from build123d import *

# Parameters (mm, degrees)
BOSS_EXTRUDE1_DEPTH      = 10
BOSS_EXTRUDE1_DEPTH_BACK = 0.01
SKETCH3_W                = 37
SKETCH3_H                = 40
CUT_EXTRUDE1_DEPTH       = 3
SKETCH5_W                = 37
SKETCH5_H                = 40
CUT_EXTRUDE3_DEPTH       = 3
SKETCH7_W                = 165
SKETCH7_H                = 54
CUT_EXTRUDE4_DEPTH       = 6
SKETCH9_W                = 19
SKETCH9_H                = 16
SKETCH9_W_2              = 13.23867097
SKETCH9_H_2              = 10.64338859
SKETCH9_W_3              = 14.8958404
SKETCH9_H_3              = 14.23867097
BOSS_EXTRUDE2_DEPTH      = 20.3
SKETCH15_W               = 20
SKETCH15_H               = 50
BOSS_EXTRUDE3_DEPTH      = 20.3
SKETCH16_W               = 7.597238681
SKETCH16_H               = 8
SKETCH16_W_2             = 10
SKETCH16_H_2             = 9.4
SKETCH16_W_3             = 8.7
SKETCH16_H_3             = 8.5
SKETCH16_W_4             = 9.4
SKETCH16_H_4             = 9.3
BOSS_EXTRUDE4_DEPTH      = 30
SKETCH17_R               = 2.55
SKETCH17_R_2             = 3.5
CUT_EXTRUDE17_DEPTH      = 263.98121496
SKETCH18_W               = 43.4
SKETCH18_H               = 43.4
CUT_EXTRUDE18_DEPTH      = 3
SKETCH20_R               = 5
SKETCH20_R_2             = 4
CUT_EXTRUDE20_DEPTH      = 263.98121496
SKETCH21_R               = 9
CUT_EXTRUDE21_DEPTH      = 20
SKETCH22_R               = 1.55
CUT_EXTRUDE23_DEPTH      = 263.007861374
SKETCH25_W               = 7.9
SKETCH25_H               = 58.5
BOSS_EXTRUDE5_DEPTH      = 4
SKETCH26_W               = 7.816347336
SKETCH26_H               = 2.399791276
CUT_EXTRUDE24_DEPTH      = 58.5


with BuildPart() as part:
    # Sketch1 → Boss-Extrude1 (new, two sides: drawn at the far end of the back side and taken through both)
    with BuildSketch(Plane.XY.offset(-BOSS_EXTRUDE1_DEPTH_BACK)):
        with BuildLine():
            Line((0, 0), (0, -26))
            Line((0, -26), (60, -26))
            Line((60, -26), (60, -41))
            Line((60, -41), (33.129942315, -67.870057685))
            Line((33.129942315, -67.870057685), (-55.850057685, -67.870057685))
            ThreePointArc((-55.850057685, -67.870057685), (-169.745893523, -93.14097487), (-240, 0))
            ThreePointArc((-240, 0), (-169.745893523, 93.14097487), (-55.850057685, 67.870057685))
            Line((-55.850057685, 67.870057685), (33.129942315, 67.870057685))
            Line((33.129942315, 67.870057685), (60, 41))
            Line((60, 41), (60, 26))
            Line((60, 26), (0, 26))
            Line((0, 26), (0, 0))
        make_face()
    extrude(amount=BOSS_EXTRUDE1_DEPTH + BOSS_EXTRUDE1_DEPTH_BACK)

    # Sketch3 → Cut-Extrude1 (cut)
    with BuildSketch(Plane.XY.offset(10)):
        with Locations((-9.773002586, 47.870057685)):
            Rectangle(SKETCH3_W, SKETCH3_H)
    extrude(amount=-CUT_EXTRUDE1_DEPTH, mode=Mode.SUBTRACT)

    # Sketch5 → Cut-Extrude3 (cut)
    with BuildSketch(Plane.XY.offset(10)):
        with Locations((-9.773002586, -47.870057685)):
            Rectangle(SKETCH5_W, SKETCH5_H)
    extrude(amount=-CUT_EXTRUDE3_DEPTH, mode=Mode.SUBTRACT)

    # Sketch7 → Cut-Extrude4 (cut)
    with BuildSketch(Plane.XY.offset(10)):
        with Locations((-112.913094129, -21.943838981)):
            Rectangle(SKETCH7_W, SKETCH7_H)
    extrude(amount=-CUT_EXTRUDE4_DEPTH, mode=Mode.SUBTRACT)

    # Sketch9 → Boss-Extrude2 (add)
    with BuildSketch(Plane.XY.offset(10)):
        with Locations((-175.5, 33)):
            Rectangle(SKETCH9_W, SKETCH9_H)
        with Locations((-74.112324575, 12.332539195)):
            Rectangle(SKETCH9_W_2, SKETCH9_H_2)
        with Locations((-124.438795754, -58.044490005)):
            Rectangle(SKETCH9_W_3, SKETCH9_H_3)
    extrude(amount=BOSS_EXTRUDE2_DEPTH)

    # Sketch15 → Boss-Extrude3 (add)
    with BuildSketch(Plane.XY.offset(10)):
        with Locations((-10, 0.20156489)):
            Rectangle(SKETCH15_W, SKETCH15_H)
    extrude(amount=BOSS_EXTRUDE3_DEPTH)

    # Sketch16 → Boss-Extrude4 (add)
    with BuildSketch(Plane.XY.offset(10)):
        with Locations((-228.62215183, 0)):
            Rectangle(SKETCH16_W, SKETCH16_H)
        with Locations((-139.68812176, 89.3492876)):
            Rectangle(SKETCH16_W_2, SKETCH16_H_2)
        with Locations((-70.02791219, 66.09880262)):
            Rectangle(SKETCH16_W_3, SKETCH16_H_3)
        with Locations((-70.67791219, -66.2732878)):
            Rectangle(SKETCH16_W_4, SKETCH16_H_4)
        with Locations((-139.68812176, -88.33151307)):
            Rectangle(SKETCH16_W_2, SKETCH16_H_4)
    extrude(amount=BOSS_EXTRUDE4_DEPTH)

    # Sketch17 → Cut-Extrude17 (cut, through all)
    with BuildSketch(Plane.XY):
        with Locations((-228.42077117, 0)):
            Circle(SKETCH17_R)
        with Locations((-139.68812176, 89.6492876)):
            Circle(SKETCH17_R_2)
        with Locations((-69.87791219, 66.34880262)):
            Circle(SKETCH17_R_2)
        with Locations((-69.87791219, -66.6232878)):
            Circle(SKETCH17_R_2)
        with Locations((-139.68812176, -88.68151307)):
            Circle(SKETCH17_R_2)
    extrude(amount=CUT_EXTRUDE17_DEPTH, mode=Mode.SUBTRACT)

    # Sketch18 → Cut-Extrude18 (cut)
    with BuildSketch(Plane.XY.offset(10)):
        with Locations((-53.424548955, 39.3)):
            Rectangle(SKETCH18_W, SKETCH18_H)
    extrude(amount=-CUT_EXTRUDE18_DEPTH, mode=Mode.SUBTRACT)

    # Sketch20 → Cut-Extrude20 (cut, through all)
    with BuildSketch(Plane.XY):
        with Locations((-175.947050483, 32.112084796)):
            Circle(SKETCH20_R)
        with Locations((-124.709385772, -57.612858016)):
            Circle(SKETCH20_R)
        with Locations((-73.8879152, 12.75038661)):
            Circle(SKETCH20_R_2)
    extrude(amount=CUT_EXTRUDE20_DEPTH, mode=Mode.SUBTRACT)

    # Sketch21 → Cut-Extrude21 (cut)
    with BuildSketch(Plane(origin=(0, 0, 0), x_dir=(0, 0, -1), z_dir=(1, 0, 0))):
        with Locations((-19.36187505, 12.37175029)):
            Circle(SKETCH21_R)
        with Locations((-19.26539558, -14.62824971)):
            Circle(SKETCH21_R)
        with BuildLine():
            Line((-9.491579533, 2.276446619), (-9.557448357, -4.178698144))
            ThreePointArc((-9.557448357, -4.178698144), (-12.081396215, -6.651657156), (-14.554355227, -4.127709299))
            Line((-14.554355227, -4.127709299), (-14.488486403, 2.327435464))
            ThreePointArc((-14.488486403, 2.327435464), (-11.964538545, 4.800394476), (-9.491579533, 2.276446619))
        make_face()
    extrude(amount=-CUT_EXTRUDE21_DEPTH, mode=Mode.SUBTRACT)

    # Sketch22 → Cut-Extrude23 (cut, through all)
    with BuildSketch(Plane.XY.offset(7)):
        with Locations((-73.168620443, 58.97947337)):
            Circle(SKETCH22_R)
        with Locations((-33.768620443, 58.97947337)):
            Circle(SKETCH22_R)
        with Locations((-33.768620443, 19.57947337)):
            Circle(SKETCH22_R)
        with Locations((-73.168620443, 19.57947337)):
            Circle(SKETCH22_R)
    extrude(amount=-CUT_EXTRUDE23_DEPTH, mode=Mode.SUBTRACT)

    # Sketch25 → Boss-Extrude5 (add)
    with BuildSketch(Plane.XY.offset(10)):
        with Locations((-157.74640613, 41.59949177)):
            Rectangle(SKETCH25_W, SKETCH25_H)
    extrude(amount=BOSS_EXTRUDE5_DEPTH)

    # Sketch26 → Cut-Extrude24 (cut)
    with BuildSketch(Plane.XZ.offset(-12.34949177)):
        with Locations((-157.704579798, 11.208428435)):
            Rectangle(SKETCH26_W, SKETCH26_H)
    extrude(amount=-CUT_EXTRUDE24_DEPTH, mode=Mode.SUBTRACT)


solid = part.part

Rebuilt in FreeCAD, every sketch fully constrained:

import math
import FreeCAD as App
import Part
import Sketcher
from FreeCAD import Vector

doc = App.newDocument("Part")
body = doc.addObject("PartDesign::Body", "Body")

# Sketch on XY plane
sketch1 = body.newObject("Sketcher::SketchObject", "Sketch")
sketch1.AttachmentSupport = (doc.getObject("XY_Plane"), [""])
sketch1.MapMode = "FlatFace"
sketch1.addGeometry(Part.LineSegment(Vector(60, -26, 0), Vector(0, -26, 0)), False)
sketch1.addGeometry(Part.LineSegment(Vector(0, -26, 0), Vector(0, 26, 0)), False)
sketch1.addGeometry(Part.LineSegment(Vector(0, 26, 0), Vector(60, 26, 0)), False)
sketch1.addGeometry(Part.LineSegment(Vector(60, 26, 0), Vector(60, 41, 0)), False)
sketch1.addGeometry(Part.LineSegment(Vector(60, 41, 0), Vector(33, 68, 0)), False)
sketch1.addGeometry(Part.LineSegment(Vector(33, 68, 0), Vector(-56, 68, 0)), False)
sketch1.addGeometry(Part.ArcOfCircle(Part.Circle(Vector(-132, -8, 0), Vector(0, 0, 1), 108), math.radians(45), math.radians(176)), False)
sketch1.addGeometry(Part.ArcOfCircle(Part.Circle(Vector(-132, 8, 0), Vector(0, 0, 1), 108), math.radians(-176), math.radians(-45)), False)
sketch1.addGeometry(Part.LineSegment(Vector(-56, -68, 0), Vector(33, -68, 0)), False)
sketch1.addGeometry(Part.LineSegment(Vector(33, -68, 0), Vector(60, -41, 0)), False)
sketch1.addGeometry(Part.LineSegment(Vector(60, -41, 0), Vector(60, -26, 0)), False)
sketch1.addConstraint(Sketcher.Constraint("Coincident", 0, 2, 1, 1))
sketch1.addConstraint(Sketcher.Constraint("Coincident", 1, 2, 2, 1))
sketch1.addConstraint(Sketcher.Constraint("Coincident", 2, 2, 3, 1))
sketch1.addConstraint(Sketcher.Constraint("Coincident", 3, 2, 4, 1))
sketch1.addConstraint(Sketcher.Constraint("Coincident", 4, 2, 5, 1))
sketch1.addConstraint(Sketcher.Constraint("Coincident", 5, 2, 6, 1))
sketch1.addConstraint(Sketcher.Constraint("Coincident", 6, 2, 7, 1))
sketch1.addConstraint(Sketcher.Constraint("Coincident", 7, 2, 8, 1))
sketch1.addConstraint(Sketcher.Constraint("Coincident", 8, 2, 9, 1))
sketch1.addConstraint(Sketcher.Constraint("Coincident", 9, 2, 10, 1))
sketch1.addConstraint(Sketcher.Constraint("Coincident", 10, 2, 0, 1))
sketch1.addConstraint(Sketcher.Constraint("Horizontal", 0))
sketch1.addConstraint(Sketcher.Constraint("Vertical", 1))
sketch1.addConstraint(Sketcher.Constraint("Horizontal", 2))
sketch1.addConstraint(Sketcher.Constraint("Vertical", 3))
sketch1.addConstraint(Sketcher.Constraint("Horizontal", 5))
sketch1.addConstraint(Sketcher.Constraint("Horizontal", 8))
sketch1.addConstraint(Sketcher.Constraint("Vertical", 10))
sketch1.addConstraint(Sketcher.Constraint("Equal", 6, 7))
sketch1.addConstraint(Sketcher.Constraint("Symmetric", 0, 2, 1, 2, -1, 1))
sketch1.addConstraint(Sketcher.Constraint("Symmetric", 6, 3, 7, 3, -1))
sketch1.addConstraint(Sketcher.Constraint("Symmetric", 4, 2, 8, 2, -1))
sketch1.addConstraint(Sketcher.Constraint("Symmetric", 3, 2, 9, 2, -1))
sketch1.addConstraint(Sketcher.Constraint("Perpendicular", 4, 9))
sketch1.addConstraint(Sketcher.Constraint("DistanceX", 0, 2, 0, 1, 60.0))
sketch1.addConstraint(Sketcher.Constraint("DistanceY", 1, 1, 1, 2, 52.0))
sketch1.addConstraint(Sketcher.Constraint("DistanceY", 3, 1, 3, 2, 15.0))
sketch1.addConstraint(Sketcher.Constraint("Distance", 4, 38.0))
sketch1.addConstraint(Sketcher.Constraint("DistanceX", 6, 2, -1, 1, 240.0))
sketch1.addConstraint(Sketcher.Constraint("DistanceX", 5, 2, 5, 1, 88.98))
sketch1.addConstraint(Sketcher.Constraint("Radius", 6, 107.853238))
pad1 = body.newObject("PartDesign::Pad", "Pad")
pad1.Profile = sketch1
pad1.Type = "TwoLengths"
pad1.Length = 10
pad1.Length2 = 0.01

# Sketch on XY plane
sketch2 = body.newObject("Sketcher::SketchObject", "Sketch001")
sketch2.AttachmentSupport = (doc.getObject("XY_Plane"), [""])
sketch2.MapMode = "FlatFace"
sketch2.AttachmentOffset = App.Placement(Vector(0, 0, 10), App.Rotation())
sketch2.addGeometry(Part.LineSegment(Vector(-28, 68, 0), Vector(-28, 28, 0)), False)
sketch2.addGeometry(Part.LineSegment(Vector(-28, 28, 0), Vector(9, 28, 0)), False)
sketch2.addGeometry(Part.LineSegment(Vector(9, 28, 0), Vector(9, 68, 0)), False)
sketch2.addGeometry(Part.LineSegment(Vector(9, 68, 0), Vector(-28, 68, 0)), False)
sketch2.addConstraint(Sketcher.Constraint("Coincident", 0, 2, 1, 1))
sketch2.addConstraint(Sketcher.Constraint("Coincident", 1, 2, 2, 1))
sketch2.addConstraint(Sketcher.Constraint("Coincident", 2, 2, 3, 1))
sketch2.addConstraint(Sketcher.Constraint("Coincident", 3, 2, 0, 1))
sketch2.addConstraint(Sketcher.Constraint("Vertical", 0))
sketch2.addConstraint(Sketcher.Constraint("Horizontal", 1))
sketch2.addConstraint(Sketcher.Constraint("Vertical", 2))
sketch2.addConstraint(Sketcher.Constraint("Horizontal", 3))
sketch2.addConstraint(Sketcher.Constraint("DistanceX", 1, 1, 1, 2, 37.0))
sketch2.addConstraint(Sketcher.Constraint("DistanceY", 0, 2, 0, 1, 40.0))
sketch2.addConstraint(Sketcher.Constraint("DistanceX", 0, 2, -1, 1, 28.273003))
sketch2.addConstraint(Sketcher.Constraint("DistanceY", -1, 1, 0, 2, 27.870058))
pocket1 = body.newObject("PartDesign::Pocket", "Pocket")
pocket1.Profile = sketch2
pocket1.Length = 3

# Sketch on XY plane
sketch3 = body.newObject("Sketcher::SketchObject", "Sketch002")
sketch3.AttachmentSupport = (doc.getObject("XY_Plane"), [""])
sketch3.MapMode = "FlatFace"
sketch3.AttachmentOffset = App.Placement(Vector(0, 0, 10), App.Rotation())
sketch3.addGeometry(Part.LineSegment(Vector(-28, -28, 0), Vector(-28, -68, 0)), False)
sketch3.addGeometry(Part.LineSegment(Vector(-28, -68, 0), Vector(9, -68, 0)), False)
sketch3.addGeometry(Part.LineSegment(Vector(9, -68, 0), Vector(9, -28, 0)), False)
sketch3.addGeometry(Part.LineSegment(Vector(9, -28, 0), Vector(-28, -28, 0)), False)
sketch3.addConstraint(Sketcher.Constraint("Coincident", 0, 2, 1, 1))
sketch3.addConstraint(Sketcher.Constraint("Coincident", 1, 2, 2, 1))
sketch3.addConstraint(Sketcher.Constraint("Coincident", 2, 2, 3, 1))
sketch3.addConstraint(Sketcher.Constraint("Coincident", 3, 2, 0, 1))
sketch3.addConstraint(Sketcher.Constraint("Vertical", 0))
sketch3.addConstraint(Sketcher.Constraint("Horizontal", 1))
sketch3.addConstraint(Sketcher.Constraint("Vertical", 2))
sketch3.addConstraint(Sketcher.Constraint("Horizontal", 3))
sketch3.addConstraint(Sketcher.Constraint("DistanceX", 1, 1, 1, 2, 37.0))
sketch3.addConstraint(Sketcher.Constraint("DistanceY", 0, 2, 0, 1, 40.0))
sketch3.addConstraint(Sketcher.Constraint("DistanceX", 0, 2, -1, 1, 28.273003))
sketch3.addConstraint(Sketcher.Constraint("DistanceY", 0, 2, -1, 1, 67.870058))
pocket2 = body.newObject("PartDesign::Pocket", "Pocket001")
pocket2.Profile = sketch3
pocket2.Length = 3

# Sketch on XY plane
sketch4 = body.newObject("Sketcher::SketchObject", "Sketch003")
sketch4.AttachmentSupport = (doc.getObject("XY_Plane"), [""])
sketch4.MapMode = "FlatFace"
sketch4.AttachmentOffset = App.Placement(Vector(0, 0, 10), App.Rotation())
sketch4.addGeometry(Part.LineSegment(Vector(-195, 5, 0), Vector(-195, -49, 0)), False)
sketch4.addGeometry(Part.LineSegment(Vector(-195, -49, 0), Vector(-30, -49, 0)), False)
sketch4.addGeometry(Part.LineSegment(Vector(-30, -49, 0), Vector(-30, 5, 0)), False)
sketch4.addGeometry(Part.LineSegment(Vector(-30, 5, 0), Vector(-195, 5, 0)), False)
sketch4.addConstraint(Sketcher.Constraint("Coincident", 0, 2, 1, 1))
sketch4.addConstraint(Sketcher.Constraint("Coincident", 1, 2, 2, 1))
sketch4.addConstraint(Sketcher.Constraint("Coincident", 2, 2, 3, 1))
sketch4.addConstraint(Sketcher.Constraint("Coincident", 3, 2, 0, 1))
sketch4.addConstraint(Sketcher.Constraint("Vertical", 0))
sketch4.addConstraint(Sketcher.Constraint("Horizontal", 1))
sketch4.addConstraint(Sketcher.Constraint("Vertical", 2))
sketch4.addConstraint(Sketcher.Constraint("Horizontal", 3))
sketch4.addConstraint(Sketcher.Constraint("DistanceX", 1, 1, 1, 2, 165.0))
sketch4.addConstraint(Sketcher.Constraint("DistanceY", 0, 2, 0, 1, 54.0))
sketch4.addConstraint(Sketcher.Constraint("DistanceY", 0, 2, -1, 1, 48.943839))
sketch4.addConstraint(Sketcher.Constraint("DistanceX", 0, 2, -1, 1, 195.413094))
pocket3 = body.newObject("PartDesign::Pocket", "Pocket002")
pocket3.Profile = sketch4
pocket3.Length = 6

# Sketch on XY plane
sketch5 = body.newObject("Sketcher::SketchObject", "Sketch004")
sketch5.AttachmentSupport = (doc.getObject("XY_Plane"), [""])
sketch5.MapMode = "FlatFace"
sketch5.AttachmentOffset = App.Placement(Vector(0, 0, 10), App.Rotation())
sketch5.addGeometry(Part.LineSegment(Vector(-185, 41, 0), Vector(-185, 25, 0)), False)
sketch5.addGeometry(Part.LineSegment(Vector(-185, 25, 0), Vector(-166, 25, 0)), False)
sketch5.addGeometry(Part.LineSegment(Vector(-166, 25, 0), Vector(-166, 41, 0)), False)
sketch5.addGeometry(Part.LineSegment(Vector(-166, 41, 0), Vector(-185, 41, 0)), False)
sketch5.addGeometry(Part.LineSegment(Vector(-81, 18, 0), Vector(-81, 7, 0)), False)
sketch5.addGeometry(Part.LineSegment(Vector(-81, 7, 0), Vector(-67, 7, 0)), False)
sketch5.addGeometry(Part.LineSegment(Vector(-67, 7, 0), Vector(-67, 18, 0)), False)
sketch5.addGeometry(Part.LineSegment(Vector(-67, 18, 0), Vector(-81, 18, 0)), False)
sketch5.addGeometry(Part.LineSegment(Vector(-132, -51, 0), Vector(-132, -65, 0)), False)
sketch5.addGeometry(Part.LineSegment(Vector(-132, -65, 0), Vector(-117, -65, 0)), False)
sketch5.addGeometry(Part.LineSegment(Vector(-117, -65, 0), Vector(-117, -51, 0)), False)
sketch5.addGeometry(Part.LineSegment(Vector(-117, -51, 0), Vector(-132, -51, 0)), False)
sketch5.addConstraint(Sketcher.Constraint("Coincident", 0, 2, 1, 1))
sketch5.addConstraint(Sketcher.Constraint("Coincident", 1, 2, 2, 1))
sketch5.addConstraint(Sketcher.Constraint("Coincident", 2, 2, 3, 1))
sketch5.addConstraint(Sketcher.Constraint("Coincident", 3, 2, 0, 1))
sketch5.addConstraint(Sketcher.Constraint("Coincident", 4, 2, 5, 1))
sketch5.addConstraint(Sketcher.Constraint("Coincident", 5, 2, 6, 1))
sketch5.addConstraint(Sketcher.Constraint("Coincident", 6, 2, 7, 1))
sketch5.addConstraint(Sketcher.Constraint("Coincident", 7, 2, 4, 1))
sketch5.addConstraint(Sketcher.Constraint("Coincident", 8, 2, 9, 1))
sketch5.addConstraint(Sketcher.Constraint("Coincident", 9, 2, 10, 1))
sketch5.addConstraint(Sketcher.Constraint("Coincident", 10, 2, 11, 1))
sketch5.addConstraint(Sketcher.Constraint("Coincident", 11, 2, 8, 1))
sketch5.addConstraint(Sketcher.Constraint("Vertical", 0))
sketch5.addConstraint(Sketcher.Constraint("Horizontal", 1))
sketch5.addConstraint(Sketcher.Constraint("Vertical", 2))
sketch5.addConstraint(Sketcher.Constraint("Horizontal", 3))
sketch5.addConstraint(Sketcher.Constraint("Vertical", 4))
sketch5.addConstraint(Sketcher.Constraint("Horizontal", 5))
sketch5.addConstraint(Sketcher.Constraint("Vertical", 6))
sketch5.addConstraint(Sketcher.Constraint("Horizontal", 7))
sketch5.addConstraint(Sketcher.Constraint("Vertical", 8))
sketch5.addConstraint(Sketcher.Constraint("Horizontal", 9))
sketch5.addConstraint(Sketcher.Constraint("Vertical", 10))
sketch5.addConstraint(Sketcher.Constraint("Horizontal", 11))
sketch5.addConstraint(Sketcher.Constraint("DistanceX", 1, 1, 1, 2, 19.0))
sketch5.addConstraint(Sketcher.Constraint("DistanceY", 0, 2, 0, 1, 16.0))
sketch5.addConstraint(Sketcher.Constraint("DistanceX", 0, 2, -1, 1, 185.0))
sketch5.addConstraint(Sketcher.Constraint("DistanceY", -1, 1, 0, 2, 25.0))
sketch5.addConstraint(Sketcher.Constraint("DistanceY", 10, 2, 4, 2, 57.935999))
sketch5.addConstraint(Sketcher.Constraint("DistanceX", 5, 1, 5, 2, 13.238671))
sketch5.addConstraint(Sketcher.Constraint("DistanceX", 9, 1, 9, 2, 14.89584))
sketch5.addConstraint(Sketcher.Constraint("DistanceY", 4, 2, 4, 1, 10.643389))
sketch5.addConstraint(Sketcher.Constraint("DistanceY", 8, 2, 8, 1, 14.238671))
sketch5.addConstraint(Sketcher.Constraint("DistanceX", 4, 2, -1, 1, 80.73166))
sketch5.addConstraint(Sketcher.Constraint("DistanceY", -1, 1, 4, 2, 7.010845))
sketch5.addConstraint(Sketcher.Constraint("DistanceX", 8, 2, -1, 1, 131.886716))
pad2 = body.newObject("PartDesign::Pad", "Pad001")
pad2.Profile = sketch5
pad2.Length = 20.3

# Sketch on XY plane
sketch6 = body.newObject("Sketcher::SketchObject", "Sketch005")
sketch6.AttachmentSupport = (doc.getObject("XY_Plane"), [""])
sketch6.MapMode = "FlatFace"
sketch6.AttachmentOffset = App.Placement(Vector(0, 0, 10), App.Rotation())
sketch6.addGeometry(Part.LineSegment(Vector(-20, 25, 0), Vector(-20, -25, 0)), False)
sketch6.addGeometry(Part.LineSegment(Vector(-20, -25, 0), Vector(0, -25, 0)), False)
sketch6.addGeometry(Part.LineSegment(Vector(0, -25, 0), Vector(0, 25, 0)), False)
sketch6.addGeometry(Part.LineSegment(Vector(0, 25, 0), Vector(-20, 25, 0)), False)
sketch6.addConstraint(Sketcher.Constraint("Coincident", 0, 2, 1, 1))
sketch6.addConstraint(Sketcher.Constraint("Coincident", 1, 2, 2, 1))
sketch6.addConstraint(Sketcher.Constraint("Coincident", 2, 2, 3, 1))
sketch6.addConstraint(Sketcher.Constraint("Coincident", 3, 2, 0, 1))
sketch6.addConstraint(Sketcher.Constraint("Vertical", 0))
sketch6.addConstraint(Sketcher.Constraint("Horizontal", 1))
sketch6.addConstraint(Sketcher.Constraint("Vertical", 2))
sketch6.addConstraint(Sketcher.Constraint("Horizontal", 3))
sketch6.addConstraint(Sketcher.Constraint("PointOnObject", 1, 2, -2))
sketch6.addConstraint(Sketcher.Constraint("DistanceX", 1, 1, 1, 2, 20.0))
sketch6.addConstraint(Sketcher.Constraint("DistanceY", 0, 2, 0, 1, 50.0))
sketch6.addConstraint(Sketcher.Constraint("DistanceY", 0, 2, -1, 1, 24.798435))
pad3 = body.newObject("PartDesign::Pad", "Pad002")
pad3.Profile = sketch6
pad3.Length = 20.3

# Sketch on XY plane
sketch7 = body.newObject("Sketcher::SketchObject", "Sketch006")
sketch7.AttachmentSupport = (doc.getObject("XY_Plane"), [""])
sketch7.MapMode = "FlatFace"
sketch7.AttachmentOffset = App.Placement(Vector(0, 0, 10), App.Rotation())
sketch7.addGeometry(Part.LineSegment(Vector(-232, 4, 0), Vector(-232, -4, 0)), False)
sketch7.addGeometry(Part.LineSegment(Vector(-232, -4, 0), Vector(-225, -4, 0)), False)
sketch7.addGeometry(Part.LineSegment(Vector(-225, -4, 0), Vector(-225, 4, 0)), False)
sketch7.addGeometry(Part.LineSegment(Vector(-225, 4, 0), Vector(-232, 4, 0)), False)
sketch7.addGeometry(Part.LineSegment(Vector(-145, 94, 0), Vector(-145, 85, 0)), False)
sketch7.addGeometry(Part.LineSegment(Vector(-145, 85, 0), Vector(-135, 85, 0)), False)
sketch7.addGeometry(Part.LineSegment(Vector(-135, 85, 0), Vector(-135, 94, 0)), False)
sketch7.addGeometry(Part.LineSegment(Vector(-135, 94, 0), Vector(-145, 94, 0)), False)
sketch7.addGeometry(Part.LineSegment(Vector(-74, 70, 0), Vector(-74, 62, 0)), False)
sketch7.addGeometry(Part.LineSegment(Vector(-74, 62, 0), Vector(-66, 62, 0)), False)
sketch7.addGeometry(Part.LineSegment(Vector(-66, 62, 0), Vector(-66, 70, 0)), False)
sketch7.addGeometry(Part.LineSegment(Vector(-66, 70, 0), Vector(-74, 70, 0)), False)
sketch7.addGeometry(Part.LineSegment(Vector(-75, -62, 0), Vector(-75, -71, 0)), False)
sketch7.addGeometry(Part.LineSegment(Vector(-75, -71, 0), Vector(-66, -71, 0)), False)
sketch7.addGeometry(Part.LineSegment(Vector(-66, -71, 0), Vector(-66, -62, 0)), False)
sketch7.addGeometry(Part.LineSegment(Vector(-66, -62, 0), Vector(-75, -62, 0)), False)
sketch7.addGeometry(Part.LineSegment(Vector(-145, -84, 0), Vector(-145, -93, 0)), False)
sketch7.addGeometry(Part.LineSegment(Vector(-145, -93, 0), Vector(-135, -93, 0)), False)
sketch7.addGeometry(Part.LineSegment(Vector(-135, -93, 0), Vector(-135, -84, 0)), False)
sketch7.addGeometry(Part.LineSegment(Vector(-135, -84, 0), Vector(-145, -84, 0)), False)
sketch7.addConstraint(Sketcher.Constraint("Coincident", 0, 2, 1, 1))
sketch7.addConstraint(Sketcher.Constraint("Coincident", 1, 2, 2, 1))
sketch7.addConstraint(Sketcher.Constraint("Coincident", 2, 2, 3, 1))
sketch7.addConstraint(Sketcher.Constraint("Coincident", 3, 2, 0, 1))
sketch7.addConstraint(Sketcher.Constraint("Coincident", 4, 2, 5, 1))
sketch7.addConstraint(Sketcher.Constraint("Coincident", 5, 2, 6, 1))
sketch7.addConstraint(Sketcher.Constraint("Coincident", 6, 2, 7, 1))
sketch7.addConstraint(Sketcher.Constraint("Coincident", 7, 2, 4, 1))
sketch7.addConstraint(Sketcher.Constraint("Coincident", 8, 2, 9, 1))
sketch7.addConstraint(Sketcher.Constraint("Coincident", 9, 2, 10, 1))
sketch7.addConstraint(Sketcher.Constraint("Coincident", 10, 2, 11, 1))
sketch7.addConstraint(Sketcher.Constraint("Coincident", 11, 2, 8, 1))
sketch7.addConstraint(Sketcher.Constraint("Coincident", 12, 2, 13, 1))
sketch7.addConstraint(Sketcher.Constraint("Coincident", 13, 2, 14, 1))
sketch7.addConstraint(Sketcher.Constraint("Coincident", 14, 2, 15, 1))
sketch7.addConstraint(Sketcher.Constraint("Coincident", 15, 2, 12, 1))
sketch7.addConstraint(Sketcher.Constraint("Coincident", 16, 2, 17, 1))
sketch7.addConstraint(Sketcher.Constraint("Coincident", 17, 2, 18, 1))
sketch7.addConstraint(Sketcher.Constraint("Coincident", 18, 2, 19, 1))
sketch7.addConstraint(Sketcher.Constraint("Coincident", 19, 2, 16, 1))
sketch7.addConstraint(Sketcher.Constraint("Vertical", 0))
sketch7.addConstraint(Sketcher.Constraint("Horizontal", 1))
sketch7.addConstraint(Sketcher.Constraint("Vertical", 2))
sketch7.addConstraint(Sketcher.Constraint("Horizontal", 3))
sketch7.addConstraint(Sketcher.Constraint("Vertical", 4))
sketch7.addConstraint(Sketcher.Constraint("Horizontal", 5))
sketch7.addConstraint(Sketcher.Constraint("Vertical", 6))
sketch7.addConstraint(Sketcher.Constraint("Horizontal", 7))
sketch7.addConstraint(Sketcher.Constraint("Vertical", 8))
sketch7.addConstraint(Sketcher.Constraint("Horizontal", 9))
sketch7.addConstraint(Sketcher.Constraint("Vertical", 10))
sketch7.addConstraint(Sketcher.Constraint("Horizontal", 11))
sketch7.addConstraint(Sketcher.Constraint("Vertical", 12))
sketch7.addConstraint(Sketcher.Constraint("Horizontal", 13))
sketch7.addConstraint(Sketcher.Constraint("Vertical", 14))
sketch7.addConstraint(Sketcher.Constraint("Horizontal", 15))
sketch7.addConstraint(Sketcher.Constraint("Vertical", 16))
sketch7.addConstraint(Sketcher.Constraint("Horizontal", 17))
sketch7.addConstraint(Sketcher.Constraint("Vertical", 18))
sketch7.addConstraint(Sketcher.Constraint("Horizontal", 19))
sketch7.addConstraint(Sketcher.Constraint("Vertical", 7, 2, 16, 2))
sketch7.addConstraint(Sketcher.Constraint("Vertical", 6, 2, 17, 2))
sketch7.addConstraint(Sketcher.Constraint("Equal", 15, 4))
sketch7.addConstraint(Sketcher.Constraint("Equal", 14, 16))
sketch7.addConstraint(Sketcher.Constraint("DistanceX", 5, 1, 5, 2, 10.0))
sketch7.addConstraint(Sketcher.Constraint("DistanceY", 0, 2, 0, 1, 8.0))
sketch7.addConstraint(Sketcher.Constraint("DistanceX", 9, 1, 9, 2, 8.7))
sketch7.addConstraint(Sketcher.Constraint("DistanceX", 13, 1, 13, 2, 9.4))
sketch7.addConstraint(Sketcher.Constraint("DistanceY", 8, 2, 8, 1, 8.5))
sketch7.addConstraint(Sketcher.Constraint("DistanceY", 12, 2, 12, 1, 9.3))
sketch7.addConstraint(Sketcher.Constraint("DistanceY", 0, 2, -1, 1, 4.0))
sketch7.addConstraint(Sketcher.Constraint("DistanceX", 12, 2, 8, 2, 1.0))
sketch7.addConstraint(Sketcher.Constraint("DistanceX", 1, 1, 1, 2, 7.597239))
sketch7.addConstraint(Sketcher.Constraint("DistanceX", 0, 2, -1, 1, 232.420771))
sketch7.addConstraint(Sketcher.Constraint("DistanceX", 4, 2, -1, 1, 144.688122))
sketch7.addConstraint(Sketcher.Constraint("DistanceX", 5, 2, 8, 2, 60.31021))
sketch7.addConstraint(Sketcher.Constraint("DistanceY", 12, 2, 8, 2, 132.77209))
sketch7.addConstraint(Sketcher.Constraint("DistanceY", -1, 1, 4, 2, 84.649288))
sketch7.addConstraint(Sketcher.Constraint("DistanceY", -1, 1, 8, 2, 61.848803))
sketch7.addConstraint(Sketcher.Constraint("DistanceY", 16, 2, -1, 1, 92.981513))
pad4 = body.newObject("PartDesign::Pad", "Pad003")
pad4.Profile = sketch7
pad4.Length = 30

# Sketch on XY plane
sketch8 = body.newObject("Sketcher::SketchObject", "Sketch007")
sketch8.AttachmentSupport = (doc.getObject("XY_Plane"), [""])
sketch8.MapMode = "FlatFace"
sketch8.addGeometry(Part.Circle(Vector(-228.4, 0, 0), Vector(0, 0, 1), 2.5), False)
sketch8.addGeometry(Part.Circle(Vector(-139.7, 89.6, 0), Vector(0, 0, 1), 3.5), False)
sketch8.addGeometry(Part.Circle(Vector(-69.9, 66.3, 0), Vector(0, 0, 1), 3.5), False)
sketch8.addGeometry(Part.Circle(Vector(-69.9, -66.6, 0), Vector(0, 0, 1), 3.5), False)
sketch8.addGeometry(Part.Circle(Vector(-139.7, -88.7, 0), Vector(0, 0, 1), 3.5), False)
sketch8.addConstraint(Sketcher.Constraint("Equal", 1, 2))
sketch8.addConstraint(Sketcher.Constraint("Equal", 2, 3))
sketch8.addConstraint(Sketcher.Constraint("Equal", 3, 4))
sketch8.addConstraint(Sketcher.Constraint("PointOnObject", 0, 3, -1))
sketch8.addConstraint(Sketcher.Constraint("Vertical", 2, 3, 3, 3))
sketch8.addConstraint(Sketcher.Constraint("Vertical", 1, 3, 4, 3))
sketch8.addConstraint(Sketcher.Constraint("Diameter", 1, 7.0))
sketch8.addConstraint(Sketcher.Constraint("Diameter", 0, 5.1))
sketch8.addConstraint(Sketcher.Constraint("DistanceY", 4, 3, 1, 3, 178.330801))
sketch8.addConstraint(Sketcher.Constraint("DistanceX", 0, 3, -1, 1, 228.420771))
sketch8.addConstraint(Sketcher.Constraint("DistanceX", 1, 3, -1, 1, 139.688122))
sketch8.addConstraint(Sketcher.Constraint("DistanceX", 1, 3, 2, 3, 69.81021))
sketch8.addConstraint(Sketcher.Constraint("DistanceY", 3, 3, 2, 3, 132.97209))
sketch8.addConstraint(Sketcher.Constraint("DistanceY", -1, 1, 1, 3, 89.649288))
sketch8.addConstraint(Sketcher.Constraint("DistanceY", -1, 1, 2, 3, 66.348803))
pocket4 = body.newObject("PartDesign::Pocket", "Pocket003")
pocket4.Profile = sketch8
pocket4.Type = "ThroughAll"
pocket4.Reversed = True

# Sketch on XY plane
sketch9 = body.newObject("Sketcher::SketchObject", "Sketch008")
sketch9.AttachmentSupport = (doc.getObject("XY_Plane"), [""])
sketch9.MapMode = "FlatFace"
sketch9.AttachmentOffset = App.Placement(Vector(0, 0, 10), App.Rotation())
sketch9.addGeometry(Part.LineSegment(Vector(-75, 61, 0), Vector(-75, 18, 0)), False)
sketch9.addGeometry(Part.LineSegment(Vector(-75, 18, 0), Vector(-32, 18, 0)), False)
sketch9.addGeometry(Part.LineSegment(Vector(-32, 18, 0), Vector(-32, 61, 0)), False)
sketch9.addGeometry(Part.LineSegment(Vector(-32, 61, 0), Vector(-75, 61, 0)), False)
sketch9.addConstraint(Sketcher.Constraint("Coincident", 0, 2, 1, 1))
sketch9.addConstraint(Sketcher.Constraint("Coincident", 1, 2, 2, 1))
sketch9.addConstraint(Sketcher.Constraint("Coincident", 2, 2, 3, 1))
sketch9.addConstraint(Sketcher.Constraint("Coincident", 3, 2, 0, 1))
sketch9.addConstraint(Sketcher.Constraint("Vertical", 0))
sketch9.addConstraint(Sketcher.Constraint("Horizontal", 1))
sketch9.addConstraint(Sketcher.Constraint("Vertical", 2))
sketch9.addConstraint(Sketcher.Constraint("Horizontal", 3))
sketch9.addConstraint(Sketcher.Constraint("Equal", 3, 0))
sketch9.addConstraint(Sketcher.Constraint("DistanceX", 1, 1, 1, 2, 43.4))
sketch9.addConstraint(Sketcher.Constraint("DistanceY", -1, 1, 2, 2, 61.0))
sketch9.addConstraint(Sketcher.Constraint("DistanceX", 0, 2, -1, 1, 75.124549))
pocket5 = body.newObject("PartDesign::Pocket", "Pocket004")
pocket5.Profile = sketch9
pocket5.Length = 3

# Sketch on XY plane
sketch10 = body.newObject("Sketcher::SketchObject", "Sketch009")
sketch10.AttachmentSupport = (doc.getObject("XY_Plane"), [""])
sketch10.MapMode = "FlatFace"
sketch10.addGeometry(Part.Circle(Vector(-175.9, 32.1, 0), Vector(0, 0, 1), 5), False)
sketch10.addGeometry(Part.Circle(Vector(-124.7, -57.6, 0), Vector(0, 0, 1), 5), False)
sketch10.addGeometry(Part.Circle(Vector(-73.9, 12.8, 0), Vector(0, 0, 1), 4), False)
sketch10.addConstraint(Sketcher.Constraint("Equal", 0, 1))
sketch10.addConstraint(Sketcher.Constraint("Diameter", 0, 10.0))
sketch10.addConstraint(Sketcher.Constraint("Diameter", 2, 8.0))
sketch10.addConstraint(Sketcher.Constraint("DistanceY", 2, 3, 0, 3, 19.361698))
sketch10.addConstraint(Sketcher.Constraint("DistanceX", 0, 3, -1, 1, 175.94705))
sketch10.addConstraint(Sketcher.Constraint("DistanceY", 1, 3, -1, 1, 57.612858))
sketch10.addConstraint(Sketcher.Constraint("DistanceX", 1, 3, 2, 3, 50.821471))
sketch10.addConstraint(Sketcher.Constraint("DistanceY", -1, 1, 0, 3, 32.112085))
sketch10.addConstraint(Sketcher.Constraint("DistanceX", 1, 3, -1, 1, 124.709386))
pocket6 = body.newObject("PartDesign::Pocket", "Pocket005")
pocket6.Profile = sketch10
pocket6.Type = "ThroughAll"
pocket6.Reversed = True

# Sketch on YZ plane
sketch11 = body.newObject("Sketcher::SketchObject", "Sketch010")
sketch11.AttachmentSupport = (doc.getObject("YZ_Plane"), [""])
sketch11.MapMode = "FlatFace"
sketch11.addGeometry(Part.Circle(Vector(12.4, 19.4, 0), Vector(0, 0, 1), 9), False)
sketch11.addGeometry(Part.Circle(Vector(-14.6, 19.3, 0), Vector(0, 0, 1), 9), False)
sketch11.addGeometry(Part.LineSegment(Vector(-4.2, 9.6, 0), Vector(2.3, 9.5, 0)), False)
sketch11.addGeometry(Part.ArcOfCircle(Part.Circle(Vector(2.3, 12, 0), Vector(0, 0, 1), 2.5), math.radians(-91), math.radians(89)), False)
sketch11.addGeometry(Part.LineSegment(Vector(2.3, 14.5, 0), Vector(-4.1, 14.6, 0)), False)
sketch11.addGeometry(Part.ArcOfCircle(Part.Circle(Vector(-4.2, 12.1, 0), Vector(0, 0, 1), 2.5), math.radians(89), math.radians(269)), False)
sketch11.addConstraint(Sketcher.Constraint("Tangent", 2, 2, 3, 1))
sketch11.addConstraint(Sketcher.Constraint("Tangent", 3, 2, 4, 1))
sketch11.addConstraint(Sketcher.Constraint("Tangent", 4, 2, 5, 1))
sketch11.addConstraint(Sketcher.Constraint("Tangent", 5, 2, 2, 1))
sketch11.addConstraint(Sketcher.Constraint("Equal", 0, 1))
sketch11.addConstraint(Sketcher.Constraint("Equal", 3, 5))
sketch11.addConstraint(Sketcher.Constraint("Diameter", 0, 18.0))
sketch11.addConstraint(Sketcher.Constraint("DistanceX", 1, 3, 0, 3, 27.0))
sketch11.addConstraint(Sketcher.Constraint("Radius", 3, 2.498584))
sketch11.addConstraint(Sketcher.Constraint("DistanceY", -1, 1, 5, 3, 12.055902))
sketch11.addConstraint(Sketcher.Constraint("DistanceX", 5, 2, -1, 1, 4.178698))
sketch11.addConstraint(Sketcher.Constraint("Distance", 2, 6.455481))
sketch11.addConstraint(Sketcher.Constraint("DistanceX", -1, 1, 0, 3, 12.37175))
sketch11.addConstraint(Sketcher.Constraint("DistanceX", -1, 1, 3, 3, 2.301941))
sketch11.addConstraint(Sketcher.Constraint("DistanceY", 1, 3, 0, 3, 0.096479))
sketch11.addConstraint(Sketcher.Constraint("DistanceY", 3, 2, 0, 3, 4.873389))
pocket7 = body.newObject("PartDesign::Pocket", "Pocket006")
pocket7.Profile = sketch11
pocket7.Length = 20

# Sketch on XY plane
sketch12 = body.newObject("Sketcher::SketchObject", "Sketch011")
sketch12.AttachmentSupport = (doc.getObject("XY_Plane"), [""])
sketch12.MapMode = "FlatFace"
sketch12.AttachmentOffset = App.Placement(Vector(0, 0, 7), App.Rotation())
sketch12.addGeometry(Part.Circle(Vector(-73.2, 59, 0), Vector(0, 0, 1), 1.6), False)
sketch12.addGeometry(Part.Circle(Vector(-33.8, 59, 0), Vector(0, 0, 1), 1.6), False)
sketch12.addGeometry(Part.Circle(Vector(-33.8, 19.6, 0), Vector(0, 0, 1), 1.6), False)
sketch12.addGeometry(Part.Circle(Vector(-73.2, 19.6, 0), Vector(0, 0, 1), 1.6), False)
sketch12.addConstraint(Sketcher.Constraint("Equal", 0, 1))
sketch12.addConstraint(Sketcher.Constraint("Equal", 1, 2))
sketch12.addConstraint(Sketcher.Constraint("Equal", 2, 3))
sketch12.addConstraint(Sketcher.Constraint("Horizontal", 0, 3, 1, 3))
sketch12.addConstraint(Sketcher.Constraint("Horizontal", 2, 3, 3, 3))
sketch12.addConstraint(Sketcher.Constraint("Vertical", 1, 3, 2, 3))
sketch12.addConstraint(Sketcher.Constraint("Vertical", 0, 3, 3, 3))
sketch12.addConstraint(Sketcher.Constraint("Diameter", 0, 3.1))
sketch12.addConstraint(Sketcher.Constraint("DistanceX", 0, 3, 1, 3, 39.4))
sketch12.addConstraint(Sketcher.Constraint("DistanceY", 2, 3, 1, 3, 39.4))
sketch12.addConstraint(Sketcher.Constraint("DistanceX", 0, 3, -1, 1, 73.16862))
sketch12.addConstraint(Sketcher.Constraint("DistanceY", -1, 1, 0, 3, 58.979473))
pocket8 = body.newObject("PartDesign::Pocket", "Pocket007")
pocket8.Profile = sketch12
pocket8.Type = "ThroughAll"

# Sketch on XY plane
sketch13 = body.newObject("Sketcher::SketchObject", "Sketch012")
sketch13.AttachmentSupport = (doc.getObject("XY_Plane"), [""])
sketch13.MapMode = "FlatFace"
sketch13.AttachmentOffset = App.Placement(Vector(0, 0, 10), App.Rotation())
sketch13.addGeometry(Part.LineSegment(Vector(-162, 71, 0), Vector(-162, 12, 0)), False)
sketch13.addGeometry(Part.LineSegment(Vector(-162, 12, 0), Vector(-154, 12, 0)), False)
sketch13.addGeometry(Part.LineSegment(Vector(-154, 12, 0), Vector(-154, 71, 0)), False)
sketch13.addGeometry(Part.LineSegment(Vector(-154, 71, 0), Vector(-162, 71, 0)), False)
sketch13.addConstraint(Sketcher.Constraint("Coincident", 0, 2, 1, 1))
sketch13.addConstraint(Sketcher.Constraint("Coincident", 1, 2, 2, 1))
sketch13.addConstraint(Sketcher.Constraint("Coincident", 2, 2, 3, 1))
sketch13.addConstraint(Sketcher.Constraint("Coincident", 3, 2, 0, 1))
sketch13.addConstraint(Sketcher.Constraint("Vertical", 0))
sketch13.addConstraint(Sketcher.Constraint("Horizontal", 1))
sketch13.addConstraint(Sketcher.Constraint("Vertical", 2))
sketch13.addConstraint(Sketcher.Constraint("Horizontal", 3))
sketch13.addConstraint(Sketcher.Constraint("DistanceX", 1, 1, 1, 2, 7.9))
sketch13.addConstraint(Sketcher.Constraint("DistanceY", 0, 2, 0, 1, 58.5))
sketch13.addConstraint(Sketcher.Constraint("DistanceY", -1, 1, 0, 2, 12.349492))
sketch13.addConstraint(Sketcher.Constraint("DistanceX", 0, 2, -1, 1, 161.696406))
pad5 = body.newObject("PartDesign::Pad", "Pad004")
pad5.Profile = sketch13
pad5.Length = 4

# Sketch on XZ plane
sketch14 = body.newObject("Sketcher::SketchObject", "Sketch013")
sketch14.AttachmentSupport = (doc.getObject("XZ_Plane"), [""])
sketch14.MapMode = "FlatFace"
sketch14.AttachmentOffset = App.Placement(Vector(0, 0, -12.349492), App.Rotation())
sketch14.addGeometry(Part.LineSegment(Vector(-161.6, 12.4, 0), Vector(-161.6, 10, 0)), False)
sketch14.addGeometry(Part.LineSegment(Vector(-161.6, 10, 0), Vector(-153.8, 10, 0)), False)
sketch14.addGeometry(Part.LineSegment(Vector(-153.8, 10, 0), Vector(-153.8, 12.4, 0)), False)
sketch14.addGeometry(Part.LineSegment(Vector(-153.8, 12.4, 0), Vector(-161.6, 12.4, 0)), False)
sketch14.addConstraint(Sketcher.Constraint("Coincident", 0, 2, 1, 1))
sketch14.addConstraint(Sketcher.Constraint("Coincident", 1, 2, 2, 1))
sketch14.addConstraint(Sketcher.Constraint("Coincident", 2, 2, 3, 1))
sketch14.addConstraint(Sketcher.Constraint("Coincident", 3, 2, 0, 1))
sketch14.addConstraint(Sketcher.Constraint("Vertical", 0))
sketch14.addConstraint(Sketcher.Constraint("Horizontal", 1))
sketch14.addConstraint(Sketcher.Constraint("Vertical", 2))
sketch14.addConstraint(Sketcher.Constraint("Horizontal", 3))
sketch14.addConstraint(Sketcher.Constraint("DistanceY", 0, 2, 0, 1, 2.399791))
sketch14.addConstraint(Sketcher.Constraint("DistanceX", 1, 1, 1, 2, 7.816347))
sketch14.addConstraint(Sketcher.Constraint("DistanceX", 0, 2, -1, 1, 161.612753))
sketch14.addConstraint(Sketcher.Constraint("DistanceY", -1, 1, 0, 2, 10.008533))
pocket9 = body.newObject("PartDesign::Pocket", "Pocket008")
pocket9.Profile = sketch14
pocket9.Length = 58.5

doc.recompute()
